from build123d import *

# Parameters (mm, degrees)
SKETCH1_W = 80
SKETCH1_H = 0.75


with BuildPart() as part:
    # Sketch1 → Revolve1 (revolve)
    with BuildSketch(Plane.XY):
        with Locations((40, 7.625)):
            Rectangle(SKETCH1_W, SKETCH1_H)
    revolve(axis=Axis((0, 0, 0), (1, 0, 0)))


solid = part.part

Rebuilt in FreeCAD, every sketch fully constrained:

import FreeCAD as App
import Part
import Sketcher


def add_polygon(sketch, points):
    """Adds a closed chain of lines whose ends are joined by coincident constraints."""
    first, n = sketch.GeometryCount, len(points)
    for a, b in zip(points, points[1:] + points[:1]):
        sketch.addGeometry(Part.LineSegment(App.Vector(*a, 0), App.Vector(*b, 0)), False)
    for i in range(n):
        sketch.addConstraint(Sketcher.Constraint("Coincident", first + i, 2, first + (i + 1) % n, 1))

doc = App.newDocument("Part")
params = doc.addObject("Spreadsheet::Sheet", "Params")
for row, (alias, value) in enumerate([
    ("sketch1_width", "80 mm"),
    ("sketch1_height", "0.75 mm"),
    ("revolution_angle", "360 deg"),
], start=1):
    params.set(f"A{row}", alias)
    params.set(f"B{row}", "=" + value)
    params.setAlias(f"B{row}", alias)

body = doc.addObject("PartDesign::Body", "Body")

# Sketch on XY plane
sketch1 = body.newObject("Sketcher::SketchObject", "Sketch")
sketch1.AttachmentSupport = (doc.getObject("XY_Plane"), [""])
sketch1.MapMode = "FlatFace"
add_polygon(sketch1, [(0, 8), (0, 7.2), (80, 7.2), (80, 8)])  # lines 0-3
sketch1.addConstraint(Sketcher.Constraint("Vertical", 0))
sketch1.addConstraint(Sketcher.Constraint("Horizontal", 1))
sketch1.addConstraint(Sketcher.Constraint("Vertical", 2))
sketch1.addConstraint(Sketcher.Constraint("Horizontal", 3))
sketch1.addConstraint(Sketcher.Constraint("PointOnObject", 0, 2, -2))
sketch1.addConstraint(Sketcher.Constraint("DistanceX", 1, 1, 1, 2, 80.0))
sketch1.addConstraint(Sketcher.Constraint("DistanceY", -1, 1, 2, 2, 8.0))
sketch1.addConstraint(Sketcher.Constraint("DistanceY", 0, 2, 0, 1, 0.75))
sketch1.setExpression("Constraints[9]", "Params.sketch1_width")
sketch1.setExpression("Constraints[11]", "Params.sketch1_height")
revolution = body.newObject("PartDesign::Revolution", "Revolution")
revolution.Profile = sketch1
revolution.ReferenceAxis = (sketch1, ["H_Axis"])
revolution.setExpression("Angle", "Params.revolution_angle")

doc.recompute()
